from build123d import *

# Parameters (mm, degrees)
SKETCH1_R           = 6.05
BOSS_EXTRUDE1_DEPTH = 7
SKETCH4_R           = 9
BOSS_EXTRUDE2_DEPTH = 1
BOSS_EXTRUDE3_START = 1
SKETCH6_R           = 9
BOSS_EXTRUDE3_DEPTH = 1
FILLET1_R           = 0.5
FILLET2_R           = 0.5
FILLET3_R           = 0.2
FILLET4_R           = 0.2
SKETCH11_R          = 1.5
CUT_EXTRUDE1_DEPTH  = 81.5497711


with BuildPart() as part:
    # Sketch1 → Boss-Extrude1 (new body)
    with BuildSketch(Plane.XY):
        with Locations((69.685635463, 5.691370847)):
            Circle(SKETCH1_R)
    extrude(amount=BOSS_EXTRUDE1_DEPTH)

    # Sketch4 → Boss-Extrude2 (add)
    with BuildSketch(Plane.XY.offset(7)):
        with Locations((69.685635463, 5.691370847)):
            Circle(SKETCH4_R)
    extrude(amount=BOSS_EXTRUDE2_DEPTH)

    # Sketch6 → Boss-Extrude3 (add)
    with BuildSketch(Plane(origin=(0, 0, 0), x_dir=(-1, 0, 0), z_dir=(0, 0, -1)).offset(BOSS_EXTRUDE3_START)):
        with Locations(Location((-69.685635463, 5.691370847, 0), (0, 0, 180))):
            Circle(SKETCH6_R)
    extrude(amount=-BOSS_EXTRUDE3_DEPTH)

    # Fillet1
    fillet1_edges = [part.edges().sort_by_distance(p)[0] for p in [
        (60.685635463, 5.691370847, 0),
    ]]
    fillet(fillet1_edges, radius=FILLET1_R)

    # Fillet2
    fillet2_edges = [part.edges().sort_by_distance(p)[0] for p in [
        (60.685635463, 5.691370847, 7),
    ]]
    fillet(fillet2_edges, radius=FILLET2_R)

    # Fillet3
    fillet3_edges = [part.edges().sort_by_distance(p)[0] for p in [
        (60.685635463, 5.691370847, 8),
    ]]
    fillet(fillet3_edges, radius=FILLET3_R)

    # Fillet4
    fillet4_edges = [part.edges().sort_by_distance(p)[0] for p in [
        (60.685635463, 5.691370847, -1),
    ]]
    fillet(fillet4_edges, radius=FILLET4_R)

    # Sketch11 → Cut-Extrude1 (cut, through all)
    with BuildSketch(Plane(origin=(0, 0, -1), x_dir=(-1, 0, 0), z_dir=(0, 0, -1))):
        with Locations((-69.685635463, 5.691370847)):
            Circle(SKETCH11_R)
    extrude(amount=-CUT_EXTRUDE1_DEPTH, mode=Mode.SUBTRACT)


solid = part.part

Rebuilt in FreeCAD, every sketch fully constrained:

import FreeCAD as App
import Part
import Sketcher
Q = App.Units.Quantity


def edges_at(feature, points):
    """Names of the edges that pass closest to the given points."""
    edges = feature.Shape.Edges
    near = lambda p: min(range(len(edges)), key=lambda i: edges[i].distToShape(Part.Vertex(*p))[0])
    return sorted({f"Edge{near(p) + 1}" for p in points})

doc = App.newDocument("Part")
params = doc.addObject("Spreadsheet::Sheet", "Params")
for row, (alias, value) in enumerate([
    ("sketch1_diameter", "12.1 mm"),
    ("pad1_length", "7 mm"),
    ("sketch2_diameter", "18 mm"),
    ("pad2_length", "1 mm"),
    ("sketch3_diameter", "18 mm"),
    ("pad3_length", "1 mm"),
    ("fillet_radius", "0.5 mm"),
    ("fillet2_radius", "0.5 mm"),
    ("fillet3_radius", "0.2 mm"),
    ("fillet4_radius", "0.2 mm"),
    ("sketch4_diameter", "3 mm"),
], start=1):
    params.set(f"A{row}", alias)
    params.set(f"B{row}", "=" + value)
    params.setAlias(f"B{row}", alias)

body = doc.addObject("PartDesign::Body", "Body")

sketch1 = body.newObject("Sketcher::SketchObject", "Sketch")
sketch1.AttachmentSupport = (doc.getObject("XY_Plane"), [""])
sketch1.MapMode = "FlatFace"
sketch1.addGeometry(Part.Circle(App.Vector(70, 6, 0), App.Vector(0, 0, 1), 6), False)
sketch1.addConstraint([
    Sketcher.Constraint("Diameter", 0, Q("12.1 mm")),
    Sketcher.Constraint("DistanceY", -1, 1, 0, 3, Q("5.691371 mm")),
    Sketcher.Constraint("DistanceX", -1, 1, 0, 3, Q("69.685635 mm")),
])
sketch1.setExpression("Constraints[0]", "Params.sketch1_diameter")
pad1 = body.newObject("PartDesign::Pad", "Pad")
pad1.Profile = sketch1
pad1.setExpression("Length", "Params.pad1_length")

sketch2 = body.newObject("Sketcher::SketchObject", "Sketch001")
sketch2.AttachmentSupport = (doc.getObject("XY_Plane"), [""])
sketch2.MapMode = "FlatFace"
sketch2.AttachmentOffset = App.Placement(App.Vector(0, 0, 7), App.Rotation())
sketch2.addGeometry(Part.Circle(App.Vector(70, 6, 0), App.Vector(0, 0, 1), 9), False)
sketch2.addConstraint([
    Sketcher.Constraint("Diameter", 0, Q("18 mm")),
    Sketcher.Constraint("DistanceY", -1, 1, 0, 3, Q("5.691371 mm")),
    Sketcher.Constraint("DistanceX", -1, 1, 0, 3, Q("69.685635 mm")),
])
sketch2.setExpression("Constraints[0]", "Params.sketch2_diameter")
pad2 = body.newObject("PartDesign::Pad", "Pad001")
pad2.Profile = sketch2
pad2.setExpression("Length", "Params.pad2_length")

sketch3 = body.newObject("Sketcher::SketchObject", "Sketch002")
sketch3.AttachmentSupport = (doc.getObject("XY_Plane"), [""])
sketch3.MapMode = "FlatFace"
sketch3.AttachmentOffset = App.Placement(App.Vector(0, 0, -1), App.Rotation())
sketch3.addGeometry(Part.Circle(App.Vector(70, 6, 0), App.Vector(0, 0, 1), 9), False)
sketch3.addConstraint([
    Sketcher.Constraint("Diameter", 0, Q("18 mm")),
    Sketcher.Constraint("DistanceY", -1, 1, 0, 3, Q("5.691371 mm")),
    Sketcher.Constraint("DistanceX", -1, 1, 0, 3, Q("69.685635 mm")),
])
sketch3.setExpression("Constraints[0]", "Params.sketch3_diameter")
pad3 = body.newObject("PartDesign::Pad", "Pad002")
pad3.Profile = sketch3
pad3.setExpression("Length", "Params.pad3_length")
doc.recompute()

fillet = body.newObject("PartDesign::Fillet", "Fillet")
fillet.Base = (pad3, edges_at(pad3, [(60.686, 5.691, 0)]))
fillet.setExpression("Radius", "Params.fillet_radius")
doc.recompute()

fillet2 = body.newObject("PartDesign::Fillet", "Fillet001")
fillet2.Base = (fillet, edges_at(fillet, [(60.686, 5.691, 7)]))
fillet2.setExpression("Radius", "Params.fillet2_radius")
doc.recompute()

fillet3 = body.newObject("PartDesign::Fillet", "Fillet002")
fillet3.Base = (fillet2, edges_at(fillet2, [(60.686, 5.691, 8)]))
fillet3.setExpression("Radius", "Params.fillet3_radius")
doc.recompute()

fillet4 = body.newObject("PartDesign::Fillet", "Fillet003")
fillet4.Base = (fillet3, edges_at(fillet3, [(60.686, 5.691, -1)]))
fillet4.setExpression("Radius", "Params.fillet4_radius")

sketch4 = body.newObject("Sketcher::SketchObject", "Sketch003")
sketch4.AttachmentSupport = (doc.getObject("XY_Plane"), [""])
sketch4.MapMode = "FlatFace"
sketch4.AttachmentOffset = App.Placement(App.Vector(0, 0, -1), App.Rotation())
sketch4.addGeometry(Part.Circle(App.Vector(69.7, 5.7, 0), App.Vector(0, 0, 1), 1.5), False)
sketch4.addConstraint([
    Sketcher.Constraint("Diameter", 0, Q("3 mm")),
    Sketcher.Constraint("DistanceY", -1, 1, 0, 3, Q("5.691371 mm")),
    Sketcher.Constraint("DistanceX", -1, 1, 0, 3, Q("69.685635 mm")),
])
sketch4.setExpression("Constraints[0]", "Params.sketch4_diameter")
pocket1 = body.newObject("PartDesign::Pocket", "Pocket")
pocket1.Profile = sketch4
pocket1.Type = "ThroughAll"
pocket1.Reversed = True

doc.recompute()
